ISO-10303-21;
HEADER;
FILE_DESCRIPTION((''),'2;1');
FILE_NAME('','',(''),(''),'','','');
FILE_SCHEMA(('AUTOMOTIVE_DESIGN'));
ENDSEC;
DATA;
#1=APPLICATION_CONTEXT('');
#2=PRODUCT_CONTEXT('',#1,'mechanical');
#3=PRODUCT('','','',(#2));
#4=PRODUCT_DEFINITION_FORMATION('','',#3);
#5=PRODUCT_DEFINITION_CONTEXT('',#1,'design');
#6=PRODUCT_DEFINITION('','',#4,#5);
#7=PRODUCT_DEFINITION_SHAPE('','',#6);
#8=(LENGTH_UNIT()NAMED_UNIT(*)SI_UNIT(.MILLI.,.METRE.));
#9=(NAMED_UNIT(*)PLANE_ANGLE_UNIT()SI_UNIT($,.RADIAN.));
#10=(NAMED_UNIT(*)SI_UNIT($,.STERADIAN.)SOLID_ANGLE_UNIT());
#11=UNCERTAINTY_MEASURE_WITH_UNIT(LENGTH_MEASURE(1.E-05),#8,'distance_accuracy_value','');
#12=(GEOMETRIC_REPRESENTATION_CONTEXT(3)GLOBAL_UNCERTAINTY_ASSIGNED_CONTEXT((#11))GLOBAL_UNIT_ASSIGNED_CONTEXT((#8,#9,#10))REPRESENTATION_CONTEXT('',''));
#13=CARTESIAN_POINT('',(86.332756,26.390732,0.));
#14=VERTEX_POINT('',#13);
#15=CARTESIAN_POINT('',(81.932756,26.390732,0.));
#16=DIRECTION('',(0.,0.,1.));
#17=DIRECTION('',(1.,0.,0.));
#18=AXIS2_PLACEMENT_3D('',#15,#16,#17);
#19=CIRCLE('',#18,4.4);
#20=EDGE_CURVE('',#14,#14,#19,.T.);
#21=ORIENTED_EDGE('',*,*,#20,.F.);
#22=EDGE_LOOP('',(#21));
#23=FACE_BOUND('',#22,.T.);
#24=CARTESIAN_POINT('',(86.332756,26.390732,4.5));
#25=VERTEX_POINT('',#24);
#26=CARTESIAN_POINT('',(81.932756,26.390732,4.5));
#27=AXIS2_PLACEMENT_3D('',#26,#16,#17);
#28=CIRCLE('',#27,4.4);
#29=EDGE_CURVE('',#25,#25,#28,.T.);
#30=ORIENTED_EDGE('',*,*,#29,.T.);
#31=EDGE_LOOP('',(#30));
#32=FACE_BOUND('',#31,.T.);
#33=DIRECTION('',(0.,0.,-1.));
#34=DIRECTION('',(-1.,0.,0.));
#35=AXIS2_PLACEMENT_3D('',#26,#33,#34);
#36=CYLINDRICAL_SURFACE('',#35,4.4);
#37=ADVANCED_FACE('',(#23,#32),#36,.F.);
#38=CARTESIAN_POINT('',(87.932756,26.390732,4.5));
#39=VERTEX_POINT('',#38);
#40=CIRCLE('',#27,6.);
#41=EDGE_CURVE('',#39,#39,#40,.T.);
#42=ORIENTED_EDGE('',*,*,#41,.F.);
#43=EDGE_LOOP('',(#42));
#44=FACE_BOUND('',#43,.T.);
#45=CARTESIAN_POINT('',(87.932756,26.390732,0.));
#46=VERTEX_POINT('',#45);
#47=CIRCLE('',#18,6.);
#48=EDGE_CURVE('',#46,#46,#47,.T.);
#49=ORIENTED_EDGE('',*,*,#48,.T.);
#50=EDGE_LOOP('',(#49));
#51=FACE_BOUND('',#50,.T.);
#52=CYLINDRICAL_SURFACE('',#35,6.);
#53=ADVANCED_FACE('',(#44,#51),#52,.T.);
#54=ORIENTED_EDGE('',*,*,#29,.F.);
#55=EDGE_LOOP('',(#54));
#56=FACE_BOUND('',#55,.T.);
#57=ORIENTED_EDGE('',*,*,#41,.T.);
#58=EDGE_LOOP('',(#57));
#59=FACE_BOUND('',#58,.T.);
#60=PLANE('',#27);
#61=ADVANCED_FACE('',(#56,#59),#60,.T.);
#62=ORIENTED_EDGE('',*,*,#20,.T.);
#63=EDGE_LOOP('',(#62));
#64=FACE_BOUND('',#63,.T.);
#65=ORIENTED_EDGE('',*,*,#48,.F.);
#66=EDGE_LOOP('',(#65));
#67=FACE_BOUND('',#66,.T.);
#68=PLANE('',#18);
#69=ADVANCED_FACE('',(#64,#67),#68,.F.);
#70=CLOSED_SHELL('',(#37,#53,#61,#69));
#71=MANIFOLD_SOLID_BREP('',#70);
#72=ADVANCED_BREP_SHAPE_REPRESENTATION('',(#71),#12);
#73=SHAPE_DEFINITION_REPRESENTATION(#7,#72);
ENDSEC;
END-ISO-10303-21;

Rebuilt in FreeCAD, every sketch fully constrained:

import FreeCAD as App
import Part
import Sketcher

V = App.Vector
Q = App.Units.Quantity

doc = App.newDocument("Part")
params = doc.addObject("Spreadsheet::Sheet", "Params")
for row, (alias, value) in enumerate([
    ("sketch1_diameter", "12 mm"),
    ("sketch1_diameter2", "8.8 mm"),
    ("pad1_length", "4.5 mm"),
], start=1):
    params.set(f"A{row}", alias)
    params.set(f"B{row}", "=" + value)
    params.setAlias(f"B{row}", alias)

body = doc.addObject("PartDesign::Body", "Body")

# Sketch on XY plane
sketch1 = body.newObject("Sketcher::SketchObject", "Sketch")
sketch1.AttachmentSupport = (doc.getObject("XY_Plane"), [""])
sketch1.MapMode = "FlatFace"
sketch1.addGeometry(Part.Circle(V(81.9, 26.4, 0), V(0, 0, 1), 6), False)
sketch1.addGeometry(Part.Circle(V(81.9, 26.4, 0), V(0, 0, 1), 4.4), False)
sketch1.addConstraint(Sketcher.Constraint("Coincident", 1, 3, 0, 3))
sketch1.addConstraint(Sketcher.Constraint("Diameter", 0, Q("12 mm")))
sketch1.addConstraint(Sketcher.Constraint("Diameter", 1, Q("8.8 mm")))
sketch1.addConstraint(Sketcher.Constraint("DistanceX", -1, 1, 0, 3, Q("81.932756 mm")))
sketch1.addConstraint(Sketcher.Constraint("DistanceY", -1, 1, 0, 3, Q("26.390732 mm")))
sketch1.setExpression("Constraints[1]", "Params.sketch1_diameter")
sketch1.setExpression("Constraints[2]", "Params.sketch1_diameter2")
pad1 = body.newObject("PartDesign::Pad", "Pad")
pad1.Profile = sketch1
pad1.setExpression("Length", "Params.pad1_length")

doc.recompute()
